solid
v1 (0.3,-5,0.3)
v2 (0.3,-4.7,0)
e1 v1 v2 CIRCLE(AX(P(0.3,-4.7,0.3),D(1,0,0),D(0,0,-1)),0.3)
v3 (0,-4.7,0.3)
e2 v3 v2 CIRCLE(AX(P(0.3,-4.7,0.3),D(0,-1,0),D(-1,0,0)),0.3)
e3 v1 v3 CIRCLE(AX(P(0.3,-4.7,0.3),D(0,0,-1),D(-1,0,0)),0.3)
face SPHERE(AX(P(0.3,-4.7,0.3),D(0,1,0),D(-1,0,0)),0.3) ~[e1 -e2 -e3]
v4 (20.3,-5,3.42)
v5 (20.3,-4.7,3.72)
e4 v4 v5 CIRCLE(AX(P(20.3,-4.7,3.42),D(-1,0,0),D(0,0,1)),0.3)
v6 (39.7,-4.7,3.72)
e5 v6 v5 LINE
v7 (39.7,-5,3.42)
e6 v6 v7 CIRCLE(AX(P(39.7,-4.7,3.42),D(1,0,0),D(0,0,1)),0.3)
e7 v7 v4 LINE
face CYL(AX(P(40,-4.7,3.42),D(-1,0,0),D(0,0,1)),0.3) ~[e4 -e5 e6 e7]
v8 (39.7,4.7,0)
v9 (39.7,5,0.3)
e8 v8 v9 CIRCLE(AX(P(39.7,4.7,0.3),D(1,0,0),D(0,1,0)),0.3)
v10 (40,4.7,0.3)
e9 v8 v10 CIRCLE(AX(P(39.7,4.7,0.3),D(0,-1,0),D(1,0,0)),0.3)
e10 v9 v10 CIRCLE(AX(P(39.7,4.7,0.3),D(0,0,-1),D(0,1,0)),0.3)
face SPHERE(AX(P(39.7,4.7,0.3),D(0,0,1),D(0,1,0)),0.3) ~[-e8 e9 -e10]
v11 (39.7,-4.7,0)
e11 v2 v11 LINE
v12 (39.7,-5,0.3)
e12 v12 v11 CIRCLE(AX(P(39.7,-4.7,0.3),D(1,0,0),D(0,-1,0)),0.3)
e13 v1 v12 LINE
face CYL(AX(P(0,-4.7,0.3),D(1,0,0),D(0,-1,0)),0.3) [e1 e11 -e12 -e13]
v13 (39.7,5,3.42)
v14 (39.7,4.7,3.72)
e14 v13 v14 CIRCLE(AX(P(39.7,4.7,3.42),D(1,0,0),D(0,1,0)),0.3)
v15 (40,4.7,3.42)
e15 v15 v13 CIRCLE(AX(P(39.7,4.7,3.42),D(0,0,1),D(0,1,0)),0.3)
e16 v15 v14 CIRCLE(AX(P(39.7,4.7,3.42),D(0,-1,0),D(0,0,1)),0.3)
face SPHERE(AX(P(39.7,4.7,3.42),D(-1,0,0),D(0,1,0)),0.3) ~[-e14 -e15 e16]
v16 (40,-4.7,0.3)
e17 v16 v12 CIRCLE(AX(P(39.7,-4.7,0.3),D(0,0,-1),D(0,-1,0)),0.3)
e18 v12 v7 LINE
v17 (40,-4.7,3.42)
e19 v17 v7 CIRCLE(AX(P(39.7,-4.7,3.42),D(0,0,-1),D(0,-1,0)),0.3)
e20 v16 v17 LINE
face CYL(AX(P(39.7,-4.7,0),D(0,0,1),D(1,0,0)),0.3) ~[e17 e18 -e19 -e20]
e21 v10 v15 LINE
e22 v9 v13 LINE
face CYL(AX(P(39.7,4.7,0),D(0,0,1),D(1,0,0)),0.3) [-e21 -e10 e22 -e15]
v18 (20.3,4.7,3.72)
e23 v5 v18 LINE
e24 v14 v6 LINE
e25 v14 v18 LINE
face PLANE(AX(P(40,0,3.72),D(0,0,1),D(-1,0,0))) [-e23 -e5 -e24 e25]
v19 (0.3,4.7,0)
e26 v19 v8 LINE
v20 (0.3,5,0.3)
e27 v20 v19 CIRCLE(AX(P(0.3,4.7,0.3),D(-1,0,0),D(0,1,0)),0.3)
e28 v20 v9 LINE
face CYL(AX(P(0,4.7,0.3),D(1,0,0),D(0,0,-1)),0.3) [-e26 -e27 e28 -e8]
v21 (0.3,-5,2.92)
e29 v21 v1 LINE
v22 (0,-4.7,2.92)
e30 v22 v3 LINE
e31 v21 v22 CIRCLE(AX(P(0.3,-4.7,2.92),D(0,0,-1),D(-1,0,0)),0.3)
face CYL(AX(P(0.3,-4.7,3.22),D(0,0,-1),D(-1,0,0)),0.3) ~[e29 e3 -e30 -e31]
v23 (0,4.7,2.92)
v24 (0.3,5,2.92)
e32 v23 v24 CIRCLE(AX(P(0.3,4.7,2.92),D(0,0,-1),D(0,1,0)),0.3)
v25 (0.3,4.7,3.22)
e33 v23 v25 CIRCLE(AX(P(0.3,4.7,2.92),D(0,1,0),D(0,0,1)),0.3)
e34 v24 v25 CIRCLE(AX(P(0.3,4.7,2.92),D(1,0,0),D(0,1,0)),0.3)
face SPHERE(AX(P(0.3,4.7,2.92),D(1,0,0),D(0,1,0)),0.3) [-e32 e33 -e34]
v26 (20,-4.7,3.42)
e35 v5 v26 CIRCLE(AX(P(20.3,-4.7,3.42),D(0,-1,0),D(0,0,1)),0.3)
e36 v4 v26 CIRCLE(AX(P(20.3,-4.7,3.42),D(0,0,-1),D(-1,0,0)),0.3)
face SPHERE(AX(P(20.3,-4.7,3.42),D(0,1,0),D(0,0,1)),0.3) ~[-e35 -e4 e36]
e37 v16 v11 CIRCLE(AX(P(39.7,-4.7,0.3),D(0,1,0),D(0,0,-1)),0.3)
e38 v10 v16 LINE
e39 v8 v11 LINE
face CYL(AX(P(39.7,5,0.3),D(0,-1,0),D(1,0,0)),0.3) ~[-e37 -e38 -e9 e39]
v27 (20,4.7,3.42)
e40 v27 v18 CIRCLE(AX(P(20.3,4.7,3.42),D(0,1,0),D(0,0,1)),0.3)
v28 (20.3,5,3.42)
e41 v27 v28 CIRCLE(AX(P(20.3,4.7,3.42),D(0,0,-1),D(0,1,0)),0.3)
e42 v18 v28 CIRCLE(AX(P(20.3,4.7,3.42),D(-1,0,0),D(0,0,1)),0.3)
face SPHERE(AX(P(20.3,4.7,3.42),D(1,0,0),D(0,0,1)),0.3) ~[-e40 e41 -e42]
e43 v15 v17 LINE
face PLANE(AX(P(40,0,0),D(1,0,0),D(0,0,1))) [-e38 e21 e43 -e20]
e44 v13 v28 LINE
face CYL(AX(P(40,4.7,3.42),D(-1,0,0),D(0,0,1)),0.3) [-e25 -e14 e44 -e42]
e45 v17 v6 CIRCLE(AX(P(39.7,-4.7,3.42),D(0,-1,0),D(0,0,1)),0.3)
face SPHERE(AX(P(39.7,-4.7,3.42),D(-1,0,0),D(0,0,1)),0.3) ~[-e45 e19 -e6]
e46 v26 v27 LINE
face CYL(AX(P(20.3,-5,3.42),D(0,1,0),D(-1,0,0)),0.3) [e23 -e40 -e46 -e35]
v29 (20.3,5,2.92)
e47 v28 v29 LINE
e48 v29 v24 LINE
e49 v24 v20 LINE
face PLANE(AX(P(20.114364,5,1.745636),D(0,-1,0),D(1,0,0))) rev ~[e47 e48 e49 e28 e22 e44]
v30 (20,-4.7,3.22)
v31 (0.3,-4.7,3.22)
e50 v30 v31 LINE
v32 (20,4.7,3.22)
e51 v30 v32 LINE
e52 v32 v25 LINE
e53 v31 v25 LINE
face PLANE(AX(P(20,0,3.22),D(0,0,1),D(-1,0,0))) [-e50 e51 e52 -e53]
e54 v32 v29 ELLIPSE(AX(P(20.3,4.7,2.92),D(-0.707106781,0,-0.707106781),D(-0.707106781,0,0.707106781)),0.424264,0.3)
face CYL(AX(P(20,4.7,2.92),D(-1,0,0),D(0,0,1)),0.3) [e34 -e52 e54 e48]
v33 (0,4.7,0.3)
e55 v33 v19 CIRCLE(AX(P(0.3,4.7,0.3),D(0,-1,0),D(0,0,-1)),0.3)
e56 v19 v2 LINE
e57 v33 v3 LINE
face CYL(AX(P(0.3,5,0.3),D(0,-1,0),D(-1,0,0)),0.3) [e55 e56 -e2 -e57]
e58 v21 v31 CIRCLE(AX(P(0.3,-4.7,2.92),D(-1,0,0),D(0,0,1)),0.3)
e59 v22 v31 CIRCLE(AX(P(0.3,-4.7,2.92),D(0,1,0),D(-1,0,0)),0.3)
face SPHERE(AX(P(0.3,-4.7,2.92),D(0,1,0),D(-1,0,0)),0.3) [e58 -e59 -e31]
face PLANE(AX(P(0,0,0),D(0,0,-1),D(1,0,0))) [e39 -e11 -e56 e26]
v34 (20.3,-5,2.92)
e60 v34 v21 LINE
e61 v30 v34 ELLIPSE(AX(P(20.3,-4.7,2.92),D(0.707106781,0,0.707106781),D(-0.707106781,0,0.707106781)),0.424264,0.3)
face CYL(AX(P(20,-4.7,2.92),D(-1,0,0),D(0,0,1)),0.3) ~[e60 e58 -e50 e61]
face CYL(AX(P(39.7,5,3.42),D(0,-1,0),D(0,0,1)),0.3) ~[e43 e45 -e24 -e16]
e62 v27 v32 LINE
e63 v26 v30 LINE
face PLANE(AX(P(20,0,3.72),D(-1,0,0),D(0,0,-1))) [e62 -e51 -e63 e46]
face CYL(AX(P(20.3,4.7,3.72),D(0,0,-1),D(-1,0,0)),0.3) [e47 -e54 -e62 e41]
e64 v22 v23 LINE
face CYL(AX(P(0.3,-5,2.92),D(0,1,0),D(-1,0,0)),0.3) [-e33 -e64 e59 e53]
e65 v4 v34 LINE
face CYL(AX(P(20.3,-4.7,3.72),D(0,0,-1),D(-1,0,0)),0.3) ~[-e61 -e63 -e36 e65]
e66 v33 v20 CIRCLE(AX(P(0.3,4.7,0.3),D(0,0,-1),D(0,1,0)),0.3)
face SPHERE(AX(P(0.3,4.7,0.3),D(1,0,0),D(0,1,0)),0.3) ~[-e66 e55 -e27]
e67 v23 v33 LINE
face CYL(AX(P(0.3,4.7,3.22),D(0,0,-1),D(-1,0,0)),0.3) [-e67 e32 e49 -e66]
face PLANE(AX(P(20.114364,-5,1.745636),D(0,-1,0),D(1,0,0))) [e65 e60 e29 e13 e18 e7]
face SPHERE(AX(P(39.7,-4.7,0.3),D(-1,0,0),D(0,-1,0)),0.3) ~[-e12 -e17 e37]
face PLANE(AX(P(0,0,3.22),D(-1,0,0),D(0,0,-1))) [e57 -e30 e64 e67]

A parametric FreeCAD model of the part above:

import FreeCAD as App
import Part
import Sketcher
from FreeCAD import Vector


def edges_at(feature, points):
    """Names of the edges that pass closest to the given points."""
    edges = feature.Shape.Edges
    near = lambda p: min(range(len(edges)), key=lambda i: edges[i].distToShape(Part.Vertex(*p))[0])
    return sorted({f"Edge{near(p) + 1}" for p in points})


def add_polygon(sketch, points):
    """Adds a closed chain of lines whose ends are joined by coincident constraints."""
    first, n = sketch.GeometryCount, len(points)
    for a, b in zip(points, points[1:] + points[:1]):
        sketch.addGeometry(Part.LineSegment(App.Vector(*a, 0), App.Vector(*b, 0)), False)
    for i in range(n):
        sketch.addConstraint(Sketcher.Constraint("Coincident", first + i, 2, first + (i + 1) % n, 1))

doc = App.newDocument("Part")
body = doc.addObject("PartDesign::Body", "Body")

sketch1 = body.newObject("Sketcher::SketchObject", "Sketch")
sketch1.AttachmentSupport = (doc.getObject("XZ_Plane"), [""])
sketch1.MapMode = "FlatFace"
add_polygon(sketch1, [(0, 3.2), (0, 0), (40, 0), (40, 3.7), (20, 3.7), (20, 3.2)])
sketch1.addConstraint(Sketcher.Constraint("Vertical", 0))
sketch1.addConstraint(Sketcher.Constraint("Horizontal", 1))
sketch1.addConstraint(Sketcher.Constraint("Vertical", 2))
sketch1.addConstraint(Sketcher.Constraint("Horizontal", 3))
sketch1.addConstraint(Sketcher.Constraint("Vertical", 4))
sketch1.addConstraint(Sketcher.Constraint("Horizontal", 5))
sketch1.addConstraint(Sketcher.Constraint("Coincident", 0, 2, -1, 1))
sketch1.addConstraint(Sketcher.Constraint("Equal", 3, 5))
sketch1.addConstraint(Sketcher.Constraint("DistanceX", 1, 1, 1, 2, 40.0))
sketch1.addConstraint(Sketcher.Constraint("DistanceY", 4, 2, 4, 1, 0.5))
sketch1.addConstraint(Sketcher.Constraint("DistanceY", 0, 2, 0, 1, 3.22))
pad1 = body.newObject("PartDesign::Pad", "Pad")
pad1.Profile = sketch1
pad1.Length = 10
pad1.Midplane = True
doc.recompute()

fillet = body.newObject("PartDesign::Fillet", "Fillet")
fillet.Base = (pad1, edges_at(pad1, [
    (30, 5, 3.72),
    (40, 5, 1.86),
    (20, 5, 0),
    (20, 0, 3.72),
    (10, 5, 3.22),
    (20, 5, 3.47),
    (0, 5, 1.61),
    (0, 0, 3.22),
    (0, 0, 0),
    (0, -5, 1.61),
    (10, -5, 3.22),
    (30, -5, 3.72),
    (40, 0, 3.72),
    (20, -5, 0),
    (40, -5, 1.86),
    (40, 0, 0),
    (20, -5, 3.47),
]))
fillet.Radius = 0.3

doc.recompute()
